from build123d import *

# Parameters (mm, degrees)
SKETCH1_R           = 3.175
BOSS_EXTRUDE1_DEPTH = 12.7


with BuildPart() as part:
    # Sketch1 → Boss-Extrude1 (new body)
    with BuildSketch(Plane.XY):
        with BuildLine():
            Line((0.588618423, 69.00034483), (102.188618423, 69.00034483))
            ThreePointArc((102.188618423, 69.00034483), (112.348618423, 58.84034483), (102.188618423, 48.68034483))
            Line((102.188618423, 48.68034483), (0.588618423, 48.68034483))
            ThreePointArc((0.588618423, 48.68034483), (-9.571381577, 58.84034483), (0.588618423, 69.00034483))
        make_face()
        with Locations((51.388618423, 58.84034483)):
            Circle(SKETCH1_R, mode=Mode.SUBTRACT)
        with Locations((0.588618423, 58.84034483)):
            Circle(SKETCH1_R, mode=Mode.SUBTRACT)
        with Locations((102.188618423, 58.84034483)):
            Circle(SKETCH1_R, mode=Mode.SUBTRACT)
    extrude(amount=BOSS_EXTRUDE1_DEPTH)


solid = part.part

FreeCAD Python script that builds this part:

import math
import FreeCAD as App
import Part
import Sketcher

V = App.Vector
Q = App.Units.Quantity

doc = App.newDocument("Part")
body = doc.addObject("PartDesign::Body", "Body")

# Sketch on XY plane
sketch1 = doc.addObject("Sketcher::SketchObject", "Sketch")
body.addObject(sketch1)
sketch1.AttachmentSupport = (doc.XY_Plane, [""])
sketch1.MapMode = "FlatFace"
sketch1.addGeometry(Part.LineSegment(V(102.2, 69, 0), V(0.6, 69, 0)), False)
sketch1.addGeometry(Part.ArcOfCircle(Part.Circle(V(0.6, 58.8, 0), V(0, 0, 1), 10.2), math.radians(90), math.radians(270)), False)
sketch1.addGeometry(Part.LineSegment(V(0.6, 48.7, 0), V(102.2, 48.7, 0)), False)
sketch1.addGeometry(Part.ArcOfCircle(Part.Circle(V(102.2, 58.8, 0), V(0, 0, 1), 10.2), math.radians(-90), math.radians(90)), False)
sketch1.addGeometry(Part.Circle(V(102.2, 58.8, 0), V(0, 0, 1), 3.2), False)
sketch1.addGeometry(Part.Circle(V(51.4, 58.8, 0), V(0, 0, 1), 3.2), False)
sketch1.addGeometry(Part.Circle(V(0.6, 58.8, 0), V(0, 0, 1), 3.2), False)
sketch1.addConstraint(Sketcher.Constraint("Tangent", 0, 2, 1, 1))
sketch1.addConstraint(Sketcher.Constraint("Tangent", 1, 2, 2, 1))
sketch1.addConstraint(Sketcher.Constraint("Tangent", 2, 2, 3, 1))
sketch1.addConstraint(Sketcher.Constraint("Tangent", 3, 2, 0, 1))
sketch1.addConstraint(Sketcher.Constraint("Horizontal", 0))
sketch1.addConstraint(Sketcher.Constraint("Horizontal", 2))
sketch1.addConstraint(Sketcher.Constraint("Coincident", 4, 3, 3, 3))
sketch1.addConstraint(Sketcher.Constraint("Coincident", 6, 3, 1, 3))
sketch1.addConstraint(Sketcher.Constraint("Equal", 4, 5))
sketch1.addConstraint(Sketcher.Constraint("Equal", 5, 6))
sketch1.addConstraint(Sketcher.Constraint("Horizontal", 4, 3, 5, 3))
sketch1.addConstraint(Sketcher.Constraint("Radius", 1, Q("0.4 in")))
sketch1.addConstraint(Sketcher.Constraint("Diameter", 4, Q("0.25 in")))
sketch1.addConstraint(Sketcher.Constraint("DistanceX", 0, 2, 0, 1, Q("4 in")))
sketch1.addConstraint(Sketcher.Constraint("DistanceX", 1, 3, 5, 3, Q("2 in")))
sketch1.addConstraint(Sketcher.Constraint("DistanceX", -1, 1, 1, 3, Q("0.588618 mm")))
sketch1.addConstraint(Sketcher.Constraint("DistanceY", -1, 1, 1, 3, Q("58.840345 mm")))
pad1 = doc.addObject("PartDesign::Pad", "Pad")
body.addObject(pad1)
pad1.Profile = sketch1
pad1.Length = Q("0.5 in")

doc.recompute()
